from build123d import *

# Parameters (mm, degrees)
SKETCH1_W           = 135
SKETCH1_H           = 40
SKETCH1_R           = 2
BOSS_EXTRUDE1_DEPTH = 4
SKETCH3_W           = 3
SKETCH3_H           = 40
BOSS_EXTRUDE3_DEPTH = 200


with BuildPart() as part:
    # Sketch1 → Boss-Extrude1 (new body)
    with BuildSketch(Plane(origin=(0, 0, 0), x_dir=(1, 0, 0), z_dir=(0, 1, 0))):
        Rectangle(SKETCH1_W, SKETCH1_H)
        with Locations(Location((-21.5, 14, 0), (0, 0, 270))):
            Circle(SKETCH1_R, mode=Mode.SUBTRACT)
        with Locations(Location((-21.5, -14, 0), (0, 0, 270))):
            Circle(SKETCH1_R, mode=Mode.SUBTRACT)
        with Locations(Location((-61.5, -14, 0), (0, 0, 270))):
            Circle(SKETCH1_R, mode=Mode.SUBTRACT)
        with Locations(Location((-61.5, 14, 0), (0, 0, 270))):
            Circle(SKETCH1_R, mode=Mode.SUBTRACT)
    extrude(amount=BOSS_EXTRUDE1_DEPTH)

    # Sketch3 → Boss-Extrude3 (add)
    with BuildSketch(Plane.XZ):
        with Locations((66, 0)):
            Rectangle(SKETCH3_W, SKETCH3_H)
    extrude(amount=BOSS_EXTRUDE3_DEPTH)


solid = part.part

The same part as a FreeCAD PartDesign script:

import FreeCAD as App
import Part
import Sketcher

V = App.Vector
Q = App.Units.Quantity


def add_polygon(sketch, points):
    """Adds a closed chain of lines whose ends are joined by coincident constraints."""
    first, n = sketch.GeometryCount, len(points)
    for a, b in zip(points, points[1:] + points[:1]):
        sketch.addGeometry(Part.LineSegment(App.Vector(*a, 0), App.Vector(*b, 0)), False)
    for i in range(n):
        sketch.addConstraint(Sketcher.Constraint("Coincident", first + i, 2, first + (i + 1) % n, 1))

doc = App.newDocument("Part")
body = doc.addObject("PartDesign::Body", "Body")

# Sketch on XZ plane
sketch1 = body.newObject("Sketcher::SketchObject", "Sketch")
sketch1.AttachmentSupport = (doc.getObject("XZ_Plane"), [""])
sketch1.MapMode = "FlatFace"
add_polygon(sketch1, [(-67.5, -20), (-67.5, 20), (67.5, 20), (67.5, -20)])  # lines 0-3
sketch1.addGeometry(Part.Circle(V(-61.5, 14, 0), V(0, 0, 1), 2), False)  # 4
sketch1.addGeometry(Part.Circle(V(-21.5, 14, 0), V(0, 0, 1), 2), False)  # 5
sketch1.addGeometry(Part.Circle(V(-61.5, -14, 0), V(0, 0, 1), 2), False)  # 6
sketch1.addGeometry(Part.Circle(V(-21.5, -14, 0), V(0, 0, 1), 2), False)  # 7
sketch1.addConstraint([
    Sketcher.Constraint("Vertical", 0),
    Sketcher.Constraint("Horizontal", 1),
    Sketcher.Constraint("Vertical", 2),
    Sketcher.Constraint("Horizontal", 3),
    Sketcher.Constraint("Equal", 4, 5),
    Sketcher.Constraint("Equal", 5, 6),
    Sketcher.Constraint("Equal", 6, 7),
    Sketcher.Constraint("Symmetric", 0, 2, 2, 2, -1, 1),
    Sketcher.Constraint("Symmetric", 4, 3, 6, 3, -1),
    Sketcher.Constraint("Symmetric", 5, 3, 7, 3, -1),
    Sketcher.Constraint("Horizontal", 4, 3, 5, 3),
    Sketcher.Constraint("Diameter", 4, Q("4 mm")),
    Sketcher.Constraint("DistanceX", 1, 1, 1, 2, Q("135 mm")),
    Sketcher.Constraint("DistanceY", 0, 1, 0, 2, Q("40 mm")),
    Sketcher.Constraint("DistanceY", -1, 1, 4, 3, Q("14 mm")),
    Sketcher.Constraint("DistanceX", 4, 3, 5, 3, Q("40 mm")),
    Sketcher.Constraint("DistanceX", 0, 2, 4, 3, Q("6 mm")),
])
pad1 = body.newObject("PartDesign::Pad", "Pad")
pad1.Profile = sketch1
pad1.Length = 4
pad1.Reversed = True

# Sketch on XZ plane
sketch2 = body.newObject("Sketcher::SketchObject", "Sketch001")
sketch2.AttachmentSupport = (doc.getObject("XZ_Plane"), [""])
sketch2.MapMode = "FlatFace"
add_polygon(sketch2, [(64.5, 20), (64.5, -20), (67.5, -20), (67.5, 20)])  # lines 0-3
sketch2.addConstraint([
    Sketcher.Constraint("Vertical", 0),
    Sketcher.Constraint("Horizontal", 1),
    Sketcher.Constraint("Vertical", 2),
    Sketcher.Constraint("Horizontal", 3),
    Sketcher.Constraint("DistanceX", 1, 1, 1, 2, Q("3 mm")),
    Sketcher.Constraint("DistanceY", 0, 2, 0, 1, Q("40 mm")),
    Sketcher.Constraint("DistanceY", 0, 2, -1, 1, Q("20 mm")),
    Sketcher.Constraint("DistanceX", -1, 1, 0, 2, Q("64.5 mm")),
])
pad2 = body.newObject("PartDesign::Pad", "Pad001")
pad2.Profile = sketch2
pad2.Length = 200

doc.recompute()
